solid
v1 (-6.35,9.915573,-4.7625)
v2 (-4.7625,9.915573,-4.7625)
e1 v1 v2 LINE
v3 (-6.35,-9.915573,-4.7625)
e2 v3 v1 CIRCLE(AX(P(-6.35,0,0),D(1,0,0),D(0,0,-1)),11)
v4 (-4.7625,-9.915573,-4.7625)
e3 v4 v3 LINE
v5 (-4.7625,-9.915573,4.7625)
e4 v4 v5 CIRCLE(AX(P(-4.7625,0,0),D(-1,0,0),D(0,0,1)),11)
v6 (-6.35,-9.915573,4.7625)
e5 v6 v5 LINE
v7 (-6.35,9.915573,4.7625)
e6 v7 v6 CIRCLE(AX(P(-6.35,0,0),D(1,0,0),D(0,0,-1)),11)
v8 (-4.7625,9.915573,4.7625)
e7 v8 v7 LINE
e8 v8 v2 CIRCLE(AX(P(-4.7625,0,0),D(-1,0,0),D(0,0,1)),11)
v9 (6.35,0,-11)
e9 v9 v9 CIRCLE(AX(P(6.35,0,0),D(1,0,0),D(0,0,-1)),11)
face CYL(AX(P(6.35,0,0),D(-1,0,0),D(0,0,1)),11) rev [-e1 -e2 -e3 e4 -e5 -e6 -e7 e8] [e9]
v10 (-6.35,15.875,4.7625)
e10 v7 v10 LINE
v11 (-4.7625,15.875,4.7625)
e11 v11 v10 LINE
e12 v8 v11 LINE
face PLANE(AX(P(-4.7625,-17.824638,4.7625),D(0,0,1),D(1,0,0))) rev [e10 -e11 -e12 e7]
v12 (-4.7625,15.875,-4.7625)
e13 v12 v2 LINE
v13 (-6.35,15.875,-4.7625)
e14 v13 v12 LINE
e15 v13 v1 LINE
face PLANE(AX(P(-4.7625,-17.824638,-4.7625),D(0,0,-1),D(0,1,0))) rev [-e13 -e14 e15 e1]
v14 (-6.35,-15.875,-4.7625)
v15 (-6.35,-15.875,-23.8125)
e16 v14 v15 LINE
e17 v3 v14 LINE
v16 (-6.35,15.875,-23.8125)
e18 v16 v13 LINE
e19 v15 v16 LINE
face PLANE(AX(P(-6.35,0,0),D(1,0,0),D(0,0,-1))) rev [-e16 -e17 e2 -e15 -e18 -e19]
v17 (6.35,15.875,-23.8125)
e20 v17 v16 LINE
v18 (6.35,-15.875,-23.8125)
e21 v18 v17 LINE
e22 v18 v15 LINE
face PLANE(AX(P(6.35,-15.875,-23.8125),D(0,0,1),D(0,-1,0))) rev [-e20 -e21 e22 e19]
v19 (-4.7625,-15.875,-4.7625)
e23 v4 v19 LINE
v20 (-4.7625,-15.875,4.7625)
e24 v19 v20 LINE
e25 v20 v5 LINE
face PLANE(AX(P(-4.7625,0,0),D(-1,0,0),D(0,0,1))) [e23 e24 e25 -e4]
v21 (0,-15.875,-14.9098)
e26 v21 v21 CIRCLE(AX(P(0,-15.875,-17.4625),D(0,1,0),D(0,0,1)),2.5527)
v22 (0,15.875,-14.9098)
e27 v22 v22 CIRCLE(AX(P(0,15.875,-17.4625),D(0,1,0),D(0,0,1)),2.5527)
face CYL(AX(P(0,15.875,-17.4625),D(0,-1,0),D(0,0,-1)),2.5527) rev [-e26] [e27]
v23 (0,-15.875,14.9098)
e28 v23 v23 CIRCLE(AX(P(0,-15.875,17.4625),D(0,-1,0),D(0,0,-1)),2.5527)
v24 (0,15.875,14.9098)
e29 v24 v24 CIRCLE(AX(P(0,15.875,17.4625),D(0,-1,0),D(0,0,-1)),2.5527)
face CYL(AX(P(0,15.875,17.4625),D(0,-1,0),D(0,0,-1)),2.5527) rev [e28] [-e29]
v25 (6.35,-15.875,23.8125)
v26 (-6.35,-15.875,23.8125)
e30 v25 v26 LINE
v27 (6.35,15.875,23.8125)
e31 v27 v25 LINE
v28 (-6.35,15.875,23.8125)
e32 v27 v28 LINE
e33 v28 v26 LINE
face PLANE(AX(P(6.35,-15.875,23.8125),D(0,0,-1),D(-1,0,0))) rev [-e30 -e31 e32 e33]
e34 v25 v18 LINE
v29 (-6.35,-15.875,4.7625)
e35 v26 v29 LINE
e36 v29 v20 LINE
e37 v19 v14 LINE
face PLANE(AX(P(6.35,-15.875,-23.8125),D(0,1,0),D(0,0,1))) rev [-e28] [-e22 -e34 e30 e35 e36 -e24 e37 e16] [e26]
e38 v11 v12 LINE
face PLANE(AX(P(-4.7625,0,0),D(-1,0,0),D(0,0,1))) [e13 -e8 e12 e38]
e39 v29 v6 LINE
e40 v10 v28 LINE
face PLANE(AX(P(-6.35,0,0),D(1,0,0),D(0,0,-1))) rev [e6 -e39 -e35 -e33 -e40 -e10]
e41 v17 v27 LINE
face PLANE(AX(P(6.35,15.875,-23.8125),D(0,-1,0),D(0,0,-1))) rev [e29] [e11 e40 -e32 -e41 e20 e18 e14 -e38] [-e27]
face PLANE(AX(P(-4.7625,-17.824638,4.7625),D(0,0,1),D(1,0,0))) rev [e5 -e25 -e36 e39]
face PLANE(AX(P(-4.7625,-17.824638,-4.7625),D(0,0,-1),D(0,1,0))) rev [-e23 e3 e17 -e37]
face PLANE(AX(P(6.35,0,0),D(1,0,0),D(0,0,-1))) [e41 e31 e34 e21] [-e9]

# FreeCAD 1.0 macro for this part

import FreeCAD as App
import Part
import Sketcher
Q = App.Units.Quantity

doc = App.newDocument("Part")
body = doc.addObject("PartDesign::Body", "Body")

# Sketch on YZ plane
sketch1 = doc.addObject("Sketcher::SketchObject", "Sketch")
body.addObject(sketch1)
sketch1.AttachmentSupport = (doc.YZ_Plane, [""])
sketch1.MapMode = "FlatFace"
sketch1.addGeometry([
    Part.LineSegment(App.Vector(15.875, 23.8125, 0), App.Vector(-15.875, 23.8125, 0)),  # 0
    Part.LineSegment(App.Vector(-15.875, 23.8125, 0), App.Vector(-15.875, -23.8125, 0)),  # 1
    Part.LineSegment(App.Vector(-15.875, -23.8125, 0), App.Vector(15.875, -23.8125, 0)),  # 2
    Part.LineSegment(App.Vector(15.875, -23.8125, 0), App.Vector(15.875, 23.8125, 0)),  # 3
    Part.Circle(App.Vector(0, 0, 0), App.Vector(0, 0, 1), 11),  # 4
], False)
sketch1.addConstraint([
    Sketcher.Constraint("Coincident", 0, 2, 1, 1),
    Sketcher.Constraint("Coincident", 1, 2, 2, 1),
    Sketcher.Constraint("Coincident", 2, 2, 3, 1),
    Sketcher.Constraint("Coincident", 3, 2, 0, 1),
    Sketcher.Constraint("Horizontal", 0),
    Sketcher.Constraint("Vertical", 1),
    Sketcher.Constraint("Horizontal", 2),
    Sketcher.Constraint("Vertical", 3),
    Sketcher.Constraint("Coincident", 4, 3, -1, 1),
    Sketcher.Constraint("Symmetric", 0, 2, 2, 2, -1, 1),
    Sketcher.Constraint("DistanceX", 0, 2, 0, 1, Q("1.25 in")),
    Sketcher.Constraint("Diameter", 4, 22.0),
    Sketcher.Constraint("DistanceY", 1, 2, 1, 1, Q("1.875 in")),
])
pad1 = doc.addObject("PartDesign::Pad", "Pad")
body.addObject(pad1)
pad1.Profile = sketch1
pad1.Length = Q("0.5 in")
pad1.Midplane = True

# Sketch on XZ plane
sketch2 = doc.addObject("Sketcher::SketchObject", "Sketch001")
body.addObject(sketch2)
sketch2.AttachmentSupport = (doc.XZ_Plane, [""])
sketch2.MapMode = "FlatFace"
sketch2.AttachmentOffset = App.Placement(App.Vector(0, 0, 0.625 * 25.4), App.Rotation())
sketch2.addGeometry(Part.Circle(App.Vector(0, 17.4625, 0), App.Vector(0, 0, 1), 2.5527), False)
sketch2.addConstraint([
    Sketcher.Constraint("PointOnObject", 0, 3, -2),
    Sketcher.Constraint("Diameter", 0, Q("0.201 in")),
    Sketcher.Constraint("DistanceY", -1, 1, 0, 3, Q("0.6875 in")),
])
pocket1 = doc.addObject("PartDesign::Pocket", "Pocket")
body.addObject(pocket1)
pocket1.Profile = sketch2
pocket1.Type = "ThroughAll"
doc.recompute()

mirrored = doc.addObject("PartDesign::Mirrored", "Mirrored")
body.addObject(mirrored)
mirrored.Originals = [pocket1]
mirrored.MirrorPlane = (doc.XY_Plane, [""])
body.Tip = mirrored

# Sketch on YZ plane
sketch3 = doc.addObject("Sketcher::SketchObject", "Sketch002")
body.addObject(sketch3)
sketch3.AttachmentSupport = (doc.YZ_Plane, [""])
sketch3.MapMode = "FlatFace"
sketch3.AttachmentOffset = App.Placement(App.Vector(0, 0, -0.25 * 25.4), App.Rotation())
sketch3.addGeometry([
    Part.LineSegment(App.Vector(17.824638, -4.7625, 0), App.Vector(-17.824638, -4.7625, 0)),
    Part.LineSegment(App.Vector(-17.824638, -4.7625, 0), App.Vector(-17.824638, 4.7625, 0)),
    Part.LineSegment(App.Vector(-17.824638, 4.7625, 0), App.Vector(17.824638, 4.7625, 0)),
    Part.LineSegment(App.Vector(17.824638, 4.7625, 0), App.Vector(17.824638, -4.7625, 0)),
], False)
sketch3.addConstraint([
    Sketcher.Constraint("Coincident", 0, 2, 1, 1),
    Sketcher.Constraint("Coincident", 1, 2, 2, 1),
    Sketcher.Constraint("Coincident", 2, 2, 3, 1),
    Sketcher.Constraint("Coincident", 3, 2, 0, 1),
    Sketcher.Constraint("Horizontal", 0),
    Sketcher.Constraint("Vertical", 1),
    Sketcher.Constraint("Horizontal", 2),
    Sketcher.Constraint("Vertical", 3),
    Sketcher.Constraint("Symmetric", 0, 2, 2, 2, -1, 1),
    Sketcher.Constraint("DistanceY", 1, 1, 1, 2, Q("0.375 in")),
    Sketcher.Constraint("DistanceX", 0, 2, 0, 1, 35.649275),
])
pocket2 = doc.addObject("PartDesign::Pocket", "Pocket001")
body.addObject(pocket2)
pocket2.Profile = sketch3
pocket2.Length = Q("0.0625 in")
pocket2.Reversed = True

doc.recompute()
